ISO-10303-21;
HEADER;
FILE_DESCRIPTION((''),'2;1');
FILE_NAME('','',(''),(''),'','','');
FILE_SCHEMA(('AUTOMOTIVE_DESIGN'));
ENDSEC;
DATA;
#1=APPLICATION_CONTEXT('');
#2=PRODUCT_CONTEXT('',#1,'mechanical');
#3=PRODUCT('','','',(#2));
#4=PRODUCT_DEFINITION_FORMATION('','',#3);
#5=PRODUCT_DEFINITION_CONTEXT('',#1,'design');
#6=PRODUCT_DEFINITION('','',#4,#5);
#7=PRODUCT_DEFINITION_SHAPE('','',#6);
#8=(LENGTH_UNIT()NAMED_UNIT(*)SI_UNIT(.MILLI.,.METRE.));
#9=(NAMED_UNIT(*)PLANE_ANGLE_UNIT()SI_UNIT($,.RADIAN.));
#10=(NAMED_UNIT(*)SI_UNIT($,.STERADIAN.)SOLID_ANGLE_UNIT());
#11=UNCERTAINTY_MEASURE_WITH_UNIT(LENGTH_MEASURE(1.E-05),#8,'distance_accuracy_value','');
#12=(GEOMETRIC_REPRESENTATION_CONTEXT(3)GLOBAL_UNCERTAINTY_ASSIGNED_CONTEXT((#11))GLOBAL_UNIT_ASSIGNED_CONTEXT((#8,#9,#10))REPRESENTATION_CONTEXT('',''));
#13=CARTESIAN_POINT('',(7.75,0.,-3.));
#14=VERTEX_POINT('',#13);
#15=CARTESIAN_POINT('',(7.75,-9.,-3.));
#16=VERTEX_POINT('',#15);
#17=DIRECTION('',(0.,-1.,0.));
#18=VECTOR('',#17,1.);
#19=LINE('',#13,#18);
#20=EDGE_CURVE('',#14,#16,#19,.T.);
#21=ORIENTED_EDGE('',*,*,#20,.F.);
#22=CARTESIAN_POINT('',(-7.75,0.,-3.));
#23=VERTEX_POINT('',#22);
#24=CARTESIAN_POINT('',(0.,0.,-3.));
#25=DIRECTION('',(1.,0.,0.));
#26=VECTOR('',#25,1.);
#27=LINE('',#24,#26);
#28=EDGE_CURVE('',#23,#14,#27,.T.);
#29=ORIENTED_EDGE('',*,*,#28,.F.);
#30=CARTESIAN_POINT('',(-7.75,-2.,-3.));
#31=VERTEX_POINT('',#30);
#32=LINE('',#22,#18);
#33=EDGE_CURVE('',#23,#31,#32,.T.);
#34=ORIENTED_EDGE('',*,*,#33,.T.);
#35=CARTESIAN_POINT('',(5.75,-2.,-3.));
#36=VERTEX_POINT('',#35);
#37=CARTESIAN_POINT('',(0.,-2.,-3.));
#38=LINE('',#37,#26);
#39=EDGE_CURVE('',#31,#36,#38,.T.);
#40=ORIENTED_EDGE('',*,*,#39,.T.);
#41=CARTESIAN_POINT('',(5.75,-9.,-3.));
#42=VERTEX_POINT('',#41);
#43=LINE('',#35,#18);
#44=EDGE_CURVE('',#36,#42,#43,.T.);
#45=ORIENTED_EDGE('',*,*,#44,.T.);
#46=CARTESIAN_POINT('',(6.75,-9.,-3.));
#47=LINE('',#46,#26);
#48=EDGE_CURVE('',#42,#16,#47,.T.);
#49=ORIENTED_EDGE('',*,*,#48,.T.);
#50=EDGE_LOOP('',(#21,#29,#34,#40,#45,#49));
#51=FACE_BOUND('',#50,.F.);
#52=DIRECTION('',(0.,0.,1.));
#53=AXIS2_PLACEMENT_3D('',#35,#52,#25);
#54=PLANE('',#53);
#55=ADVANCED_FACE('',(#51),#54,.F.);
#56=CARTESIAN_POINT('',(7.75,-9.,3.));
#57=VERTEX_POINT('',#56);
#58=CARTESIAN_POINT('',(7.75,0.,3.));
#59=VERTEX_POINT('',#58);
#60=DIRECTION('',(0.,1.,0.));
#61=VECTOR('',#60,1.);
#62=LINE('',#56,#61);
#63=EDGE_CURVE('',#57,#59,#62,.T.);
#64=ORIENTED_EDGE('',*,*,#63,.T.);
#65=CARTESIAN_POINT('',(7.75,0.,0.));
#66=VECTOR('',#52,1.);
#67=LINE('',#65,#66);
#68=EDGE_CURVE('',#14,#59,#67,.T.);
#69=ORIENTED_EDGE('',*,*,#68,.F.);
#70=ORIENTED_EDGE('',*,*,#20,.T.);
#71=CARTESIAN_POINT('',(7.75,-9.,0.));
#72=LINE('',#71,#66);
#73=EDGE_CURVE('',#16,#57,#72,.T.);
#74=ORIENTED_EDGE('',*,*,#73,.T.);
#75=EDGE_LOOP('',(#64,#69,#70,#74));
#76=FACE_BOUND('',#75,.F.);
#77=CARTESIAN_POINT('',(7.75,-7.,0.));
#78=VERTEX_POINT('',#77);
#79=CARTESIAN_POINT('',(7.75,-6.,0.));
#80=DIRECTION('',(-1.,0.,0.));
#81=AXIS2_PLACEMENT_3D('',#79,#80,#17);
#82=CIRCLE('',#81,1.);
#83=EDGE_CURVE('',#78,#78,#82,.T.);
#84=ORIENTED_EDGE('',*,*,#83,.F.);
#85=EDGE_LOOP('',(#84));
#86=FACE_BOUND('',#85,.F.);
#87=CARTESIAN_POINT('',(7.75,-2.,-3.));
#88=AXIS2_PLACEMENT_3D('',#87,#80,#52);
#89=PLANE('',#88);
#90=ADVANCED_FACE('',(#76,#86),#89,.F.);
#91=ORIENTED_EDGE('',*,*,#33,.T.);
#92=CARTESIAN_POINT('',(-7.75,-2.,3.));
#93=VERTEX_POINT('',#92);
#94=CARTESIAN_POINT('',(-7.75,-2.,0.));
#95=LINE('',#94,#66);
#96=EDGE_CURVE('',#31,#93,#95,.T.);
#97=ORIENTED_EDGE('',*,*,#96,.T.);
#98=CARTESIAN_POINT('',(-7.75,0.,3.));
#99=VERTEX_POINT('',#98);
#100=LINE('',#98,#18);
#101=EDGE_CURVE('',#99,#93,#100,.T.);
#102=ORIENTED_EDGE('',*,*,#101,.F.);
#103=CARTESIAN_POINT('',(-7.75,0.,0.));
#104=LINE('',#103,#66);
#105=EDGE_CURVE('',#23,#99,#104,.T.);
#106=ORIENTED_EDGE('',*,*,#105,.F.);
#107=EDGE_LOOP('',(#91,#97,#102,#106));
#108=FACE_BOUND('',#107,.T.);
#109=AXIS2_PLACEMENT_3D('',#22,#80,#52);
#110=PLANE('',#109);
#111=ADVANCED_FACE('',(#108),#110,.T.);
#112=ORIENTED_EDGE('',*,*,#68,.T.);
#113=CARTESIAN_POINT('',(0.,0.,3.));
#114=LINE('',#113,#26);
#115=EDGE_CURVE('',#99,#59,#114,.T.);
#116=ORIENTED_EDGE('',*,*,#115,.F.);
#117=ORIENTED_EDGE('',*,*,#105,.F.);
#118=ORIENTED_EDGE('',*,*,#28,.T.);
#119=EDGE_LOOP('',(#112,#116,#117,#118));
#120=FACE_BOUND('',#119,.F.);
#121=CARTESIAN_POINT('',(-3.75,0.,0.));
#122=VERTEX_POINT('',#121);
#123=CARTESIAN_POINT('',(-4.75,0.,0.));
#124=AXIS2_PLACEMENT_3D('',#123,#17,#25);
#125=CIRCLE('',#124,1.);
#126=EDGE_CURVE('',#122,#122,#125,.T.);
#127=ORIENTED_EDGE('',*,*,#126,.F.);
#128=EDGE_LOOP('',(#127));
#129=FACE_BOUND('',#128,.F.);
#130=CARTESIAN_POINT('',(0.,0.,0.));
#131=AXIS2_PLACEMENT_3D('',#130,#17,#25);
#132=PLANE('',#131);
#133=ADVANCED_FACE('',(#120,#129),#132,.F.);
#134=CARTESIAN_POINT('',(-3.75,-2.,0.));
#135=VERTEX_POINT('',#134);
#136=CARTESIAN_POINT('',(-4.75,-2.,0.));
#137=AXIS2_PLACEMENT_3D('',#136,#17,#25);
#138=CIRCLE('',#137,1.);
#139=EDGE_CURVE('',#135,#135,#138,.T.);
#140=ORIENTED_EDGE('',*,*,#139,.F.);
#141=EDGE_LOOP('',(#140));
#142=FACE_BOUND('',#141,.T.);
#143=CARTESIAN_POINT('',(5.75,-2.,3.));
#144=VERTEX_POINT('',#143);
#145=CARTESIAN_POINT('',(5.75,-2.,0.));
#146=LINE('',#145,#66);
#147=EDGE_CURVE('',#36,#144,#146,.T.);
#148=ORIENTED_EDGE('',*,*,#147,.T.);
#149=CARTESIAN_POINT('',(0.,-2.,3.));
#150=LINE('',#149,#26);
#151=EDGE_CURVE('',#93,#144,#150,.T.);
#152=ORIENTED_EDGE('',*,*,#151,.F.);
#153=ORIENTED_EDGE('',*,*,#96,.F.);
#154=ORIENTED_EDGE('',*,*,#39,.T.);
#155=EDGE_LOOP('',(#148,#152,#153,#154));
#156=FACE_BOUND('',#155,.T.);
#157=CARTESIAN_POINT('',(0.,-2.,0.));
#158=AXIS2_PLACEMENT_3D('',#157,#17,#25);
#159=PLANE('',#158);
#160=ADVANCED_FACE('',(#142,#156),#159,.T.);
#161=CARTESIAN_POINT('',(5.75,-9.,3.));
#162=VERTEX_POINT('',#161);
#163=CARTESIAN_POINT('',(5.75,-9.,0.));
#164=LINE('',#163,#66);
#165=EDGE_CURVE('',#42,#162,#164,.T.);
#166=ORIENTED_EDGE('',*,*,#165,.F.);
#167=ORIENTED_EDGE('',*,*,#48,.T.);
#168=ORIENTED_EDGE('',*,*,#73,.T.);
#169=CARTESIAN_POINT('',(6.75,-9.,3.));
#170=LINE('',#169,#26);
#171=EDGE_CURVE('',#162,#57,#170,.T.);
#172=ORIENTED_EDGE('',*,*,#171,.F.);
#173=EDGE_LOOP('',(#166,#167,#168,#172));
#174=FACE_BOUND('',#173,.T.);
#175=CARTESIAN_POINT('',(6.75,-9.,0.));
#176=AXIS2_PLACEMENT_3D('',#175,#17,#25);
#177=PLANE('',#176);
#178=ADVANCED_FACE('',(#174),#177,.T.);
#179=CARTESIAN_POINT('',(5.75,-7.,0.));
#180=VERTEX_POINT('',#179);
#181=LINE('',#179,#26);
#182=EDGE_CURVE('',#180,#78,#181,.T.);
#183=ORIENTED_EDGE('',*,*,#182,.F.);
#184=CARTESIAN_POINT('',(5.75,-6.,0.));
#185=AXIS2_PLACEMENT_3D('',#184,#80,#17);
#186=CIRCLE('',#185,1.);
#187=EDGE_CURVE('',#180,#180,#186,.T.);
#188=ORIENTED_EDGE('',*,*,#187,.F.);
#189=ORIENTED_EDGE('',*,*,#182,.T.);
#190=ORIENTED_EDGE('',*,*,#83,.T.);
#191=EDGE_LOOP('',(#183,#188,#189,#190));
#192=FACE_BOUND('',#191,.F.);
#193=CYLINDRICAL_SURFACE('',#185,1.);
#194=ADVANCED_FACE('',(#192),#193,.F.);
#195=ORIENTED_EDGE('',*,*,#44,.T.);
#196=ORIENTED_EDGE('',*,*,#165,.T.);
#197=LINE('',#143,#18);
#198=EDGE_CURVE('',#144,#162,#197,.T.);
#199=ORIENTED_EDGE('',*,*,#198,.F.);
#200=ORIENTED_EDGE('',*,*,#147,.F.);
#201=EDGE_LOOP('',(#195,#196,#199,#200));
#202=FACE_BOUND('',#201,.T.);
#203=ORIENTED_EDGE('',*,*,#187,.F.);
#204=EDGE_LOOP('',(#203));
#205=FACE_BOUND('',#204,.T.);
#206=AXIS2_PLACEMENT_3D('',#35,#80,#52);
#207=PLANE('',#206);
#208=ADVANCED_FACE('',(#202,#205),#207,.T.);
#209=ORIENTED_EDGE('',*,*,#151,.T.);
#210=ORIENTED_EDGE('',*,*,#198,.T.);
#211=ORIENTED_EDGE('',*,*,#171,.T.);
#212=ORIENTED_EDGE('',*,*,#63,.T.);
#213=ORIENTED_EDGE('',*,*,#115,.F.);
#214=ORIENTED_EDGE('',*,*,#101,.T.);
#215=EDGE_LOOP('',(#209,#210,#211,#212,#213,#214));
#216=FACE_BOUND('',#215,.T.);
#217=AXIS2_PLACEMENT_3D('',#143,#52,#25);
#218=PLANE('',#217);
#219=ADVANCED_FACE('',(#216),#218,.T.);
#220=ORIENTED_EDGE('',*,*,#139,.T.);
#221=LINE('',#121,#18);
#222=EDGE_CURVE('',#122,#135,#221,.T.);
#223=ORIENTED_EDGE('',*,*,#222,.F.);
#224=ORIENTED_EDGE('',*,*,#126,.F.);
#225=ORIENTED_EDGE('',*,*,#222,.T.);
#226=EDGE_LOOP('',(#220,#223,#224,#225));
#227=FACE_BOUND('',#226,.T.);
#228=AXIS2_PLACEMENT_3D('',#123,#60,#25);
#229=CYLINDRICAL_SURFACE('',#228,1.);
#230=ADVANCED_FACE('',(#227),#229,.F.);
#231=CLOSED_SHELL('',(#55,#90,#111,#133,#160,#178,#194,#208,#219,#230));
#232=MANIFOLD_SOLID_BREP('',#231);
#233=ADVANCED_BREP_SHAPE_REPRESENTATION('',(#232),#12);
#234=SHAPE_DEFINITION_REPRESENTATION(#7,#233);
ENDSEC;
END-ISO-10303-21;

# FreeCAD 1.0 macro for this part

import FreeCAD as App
import Part
import Sketcher
Q = App.Units.Quantity

doc = App.newDocument("Part")
body = doc.addObject("PartDesign::Body", "Body")

# Sketch on XZ plane
sketch1 = body.newObject("Sketcher::SketchObject", "Sketch")
sketch1.AttachmentSupport = (doc.getObject("XZ_Plane"), [""])
sketch1.MapMode = "FlatFace"
sketch1.addGeometry([
    Part.LineSegment(App.Vector(-7.8, 3, 0), App.Vector(-7.8, -3, 0)),  # 0
    Part.LineSegment(App.Vector(-7.8, -3, 0), App.Vector(7.8, -3, 0)),  # 1
    Part.LineSegment(App.Vector(7.8, -3, 0), App.Vector(7.8, 3, 0)),  # 2
    Part.LineSegment(App.Vector(7.8, 3, 0), App.Vector(-7.8, 3, 0)),  # 3
    Part.Circle(App.Vector(-4.8, 0, 0), App.Vector(0, 0, 1), 1),  # 4
], False)
sketch1.addConstraint([
    Sketcher.Constraint("Coincident", 0, 2, 1, 1),
    Sketcher.Constraint("Coincident", 1, 2, 2, 1),
    Sketcher.Constraint("Coincident", 2, 2, 3, 1),
    Sketcher.Constraint("Coincident", 3, 2, 0, 1),
    Sketcher.Constraint("Vertical", 0),
    Sketcher.Constraint("Horizontal", 1),
    Sketcher.Constraint("Vertical", 2),
    Sketcher.Constraint("Horizontal", 3),
    Sketcher.Constraint("Symmetric", 0, 2, 2, 2, -1, 1),
    Sketcher.Constraint("PointOnObject", 4, 3, -1),
    Sketcher.Constraint("Diameter", 4, Q("2 mm")),
    Sketcher.Constraint("DistanceY", 0, 2, 0, 1, Q("6 mm")),
    Sketcher.Constraint("DistanceX", 1, 1, 1, 2, Q("15.5 mm")),
    Sketcher.Constraint("DistanceX", 0, 2, 4, 3, Q("3 mm")),
])
pad1 = body.newObject("PartDesign::Pad", "Pad")
pad1.Profile = sketch1
pad1.Length = 2

# Sketch on XZ plane
sketch2 = body.newObject("Sketcher::SketchObject", "Sketch001")
sketch2.AttachmentSupport = (doc.getObject("XZ_Plane"), [""])
sketch2.MapMode = "FlatFace"
sketch2.AttachmentOffset = App.Placement(App.Vector(0, 0, 2), App.Rotation())
sketch2.addGeometry([
    Part.LineSegment(App.Vector(5.8, 3, 0), App.Vector(5.8, -3, 0)),
    Part.LineSegment(App.Vector(5.8, -3, 0), App.Vector(7.8, -3, 0)),
    Part.LineSegment(App.Vector(7.8, -3, 0), App.Vector(7.8, 3, 0)),
    Part.LineSegment(App.Vector(7.8, 3, 0), App.Vector(5.8, 3, 0)),
], False)
sketch2.addConstraint([
    Sketcher.Constraint("Coincident", 0, 2, 1, 1),
    Sketcher.Constraint("Coincident", 1, 2, 2, 1),
    Sketcher.Constraint("Coincident", 2, 2, 3, 1),
    Sketcher.Constraint("Coincident", 3, 2, 0, 1),
    Sketcher.Constraint("Vertical", 0),
    Sketcher.Constraint("Horizontal", 1),
    Sketcher.Constraint("Vertical", 2),
    Sketcher.Constraint("Horizontal", 3),
    Sketcher.Constraint("DistanceX", 1, 1, 1, 2, Q("2 mm")),
    Sketcher.Constraint("DistanceY", 0, 2, 0, 1, Q("6 mm")),
    Sketcher.Constraint("DistanceY", 0, 2, -1, 1, Q("3 mm")),
    Sketcher.Constraint("DistanceX", -1, 1, 0, 2, Q("5.75 mm")),
])
pad2 = body.newObject("PartDesign::Pad", "Pad001")
pad2.Profile = sketch2
pad2.Length = 7

# Sketch on YZ plane
sketch3 = body.newObject("Sketcher::SketchObject", "Sketch002")
sketch3.AttachmentSupport = (doc.getObject("YZ_Plane"), [""])
sketch3.MapMode = "FlatFace"
sketch3.AttachmentOffset = App.Placement(App.Vector(0, 0, 5.75), App.Rotation())
sketch3.addGeometry(Part.Circle(App.Vector(-6, 0, 0), App.Vector(0, 0, 1), 1), False)
sketch3.addConstraint([
    Sketcher.Constraint("PointOnObject", 0, 3, -1),
    Sketcher.Constraint("Diameter", 0, Q("2 mm")),
    Sketcher.Constraint("DistanceX", 0, 3, -1, 1, Q("6 mm")),
])
pocket1 = body.newObject("PartDesign::Pocket", "Pocket")
pocket1.Profile = sketch3
pocket1.Length = 25
pocket1.Reversed = True

doc.recompute()
